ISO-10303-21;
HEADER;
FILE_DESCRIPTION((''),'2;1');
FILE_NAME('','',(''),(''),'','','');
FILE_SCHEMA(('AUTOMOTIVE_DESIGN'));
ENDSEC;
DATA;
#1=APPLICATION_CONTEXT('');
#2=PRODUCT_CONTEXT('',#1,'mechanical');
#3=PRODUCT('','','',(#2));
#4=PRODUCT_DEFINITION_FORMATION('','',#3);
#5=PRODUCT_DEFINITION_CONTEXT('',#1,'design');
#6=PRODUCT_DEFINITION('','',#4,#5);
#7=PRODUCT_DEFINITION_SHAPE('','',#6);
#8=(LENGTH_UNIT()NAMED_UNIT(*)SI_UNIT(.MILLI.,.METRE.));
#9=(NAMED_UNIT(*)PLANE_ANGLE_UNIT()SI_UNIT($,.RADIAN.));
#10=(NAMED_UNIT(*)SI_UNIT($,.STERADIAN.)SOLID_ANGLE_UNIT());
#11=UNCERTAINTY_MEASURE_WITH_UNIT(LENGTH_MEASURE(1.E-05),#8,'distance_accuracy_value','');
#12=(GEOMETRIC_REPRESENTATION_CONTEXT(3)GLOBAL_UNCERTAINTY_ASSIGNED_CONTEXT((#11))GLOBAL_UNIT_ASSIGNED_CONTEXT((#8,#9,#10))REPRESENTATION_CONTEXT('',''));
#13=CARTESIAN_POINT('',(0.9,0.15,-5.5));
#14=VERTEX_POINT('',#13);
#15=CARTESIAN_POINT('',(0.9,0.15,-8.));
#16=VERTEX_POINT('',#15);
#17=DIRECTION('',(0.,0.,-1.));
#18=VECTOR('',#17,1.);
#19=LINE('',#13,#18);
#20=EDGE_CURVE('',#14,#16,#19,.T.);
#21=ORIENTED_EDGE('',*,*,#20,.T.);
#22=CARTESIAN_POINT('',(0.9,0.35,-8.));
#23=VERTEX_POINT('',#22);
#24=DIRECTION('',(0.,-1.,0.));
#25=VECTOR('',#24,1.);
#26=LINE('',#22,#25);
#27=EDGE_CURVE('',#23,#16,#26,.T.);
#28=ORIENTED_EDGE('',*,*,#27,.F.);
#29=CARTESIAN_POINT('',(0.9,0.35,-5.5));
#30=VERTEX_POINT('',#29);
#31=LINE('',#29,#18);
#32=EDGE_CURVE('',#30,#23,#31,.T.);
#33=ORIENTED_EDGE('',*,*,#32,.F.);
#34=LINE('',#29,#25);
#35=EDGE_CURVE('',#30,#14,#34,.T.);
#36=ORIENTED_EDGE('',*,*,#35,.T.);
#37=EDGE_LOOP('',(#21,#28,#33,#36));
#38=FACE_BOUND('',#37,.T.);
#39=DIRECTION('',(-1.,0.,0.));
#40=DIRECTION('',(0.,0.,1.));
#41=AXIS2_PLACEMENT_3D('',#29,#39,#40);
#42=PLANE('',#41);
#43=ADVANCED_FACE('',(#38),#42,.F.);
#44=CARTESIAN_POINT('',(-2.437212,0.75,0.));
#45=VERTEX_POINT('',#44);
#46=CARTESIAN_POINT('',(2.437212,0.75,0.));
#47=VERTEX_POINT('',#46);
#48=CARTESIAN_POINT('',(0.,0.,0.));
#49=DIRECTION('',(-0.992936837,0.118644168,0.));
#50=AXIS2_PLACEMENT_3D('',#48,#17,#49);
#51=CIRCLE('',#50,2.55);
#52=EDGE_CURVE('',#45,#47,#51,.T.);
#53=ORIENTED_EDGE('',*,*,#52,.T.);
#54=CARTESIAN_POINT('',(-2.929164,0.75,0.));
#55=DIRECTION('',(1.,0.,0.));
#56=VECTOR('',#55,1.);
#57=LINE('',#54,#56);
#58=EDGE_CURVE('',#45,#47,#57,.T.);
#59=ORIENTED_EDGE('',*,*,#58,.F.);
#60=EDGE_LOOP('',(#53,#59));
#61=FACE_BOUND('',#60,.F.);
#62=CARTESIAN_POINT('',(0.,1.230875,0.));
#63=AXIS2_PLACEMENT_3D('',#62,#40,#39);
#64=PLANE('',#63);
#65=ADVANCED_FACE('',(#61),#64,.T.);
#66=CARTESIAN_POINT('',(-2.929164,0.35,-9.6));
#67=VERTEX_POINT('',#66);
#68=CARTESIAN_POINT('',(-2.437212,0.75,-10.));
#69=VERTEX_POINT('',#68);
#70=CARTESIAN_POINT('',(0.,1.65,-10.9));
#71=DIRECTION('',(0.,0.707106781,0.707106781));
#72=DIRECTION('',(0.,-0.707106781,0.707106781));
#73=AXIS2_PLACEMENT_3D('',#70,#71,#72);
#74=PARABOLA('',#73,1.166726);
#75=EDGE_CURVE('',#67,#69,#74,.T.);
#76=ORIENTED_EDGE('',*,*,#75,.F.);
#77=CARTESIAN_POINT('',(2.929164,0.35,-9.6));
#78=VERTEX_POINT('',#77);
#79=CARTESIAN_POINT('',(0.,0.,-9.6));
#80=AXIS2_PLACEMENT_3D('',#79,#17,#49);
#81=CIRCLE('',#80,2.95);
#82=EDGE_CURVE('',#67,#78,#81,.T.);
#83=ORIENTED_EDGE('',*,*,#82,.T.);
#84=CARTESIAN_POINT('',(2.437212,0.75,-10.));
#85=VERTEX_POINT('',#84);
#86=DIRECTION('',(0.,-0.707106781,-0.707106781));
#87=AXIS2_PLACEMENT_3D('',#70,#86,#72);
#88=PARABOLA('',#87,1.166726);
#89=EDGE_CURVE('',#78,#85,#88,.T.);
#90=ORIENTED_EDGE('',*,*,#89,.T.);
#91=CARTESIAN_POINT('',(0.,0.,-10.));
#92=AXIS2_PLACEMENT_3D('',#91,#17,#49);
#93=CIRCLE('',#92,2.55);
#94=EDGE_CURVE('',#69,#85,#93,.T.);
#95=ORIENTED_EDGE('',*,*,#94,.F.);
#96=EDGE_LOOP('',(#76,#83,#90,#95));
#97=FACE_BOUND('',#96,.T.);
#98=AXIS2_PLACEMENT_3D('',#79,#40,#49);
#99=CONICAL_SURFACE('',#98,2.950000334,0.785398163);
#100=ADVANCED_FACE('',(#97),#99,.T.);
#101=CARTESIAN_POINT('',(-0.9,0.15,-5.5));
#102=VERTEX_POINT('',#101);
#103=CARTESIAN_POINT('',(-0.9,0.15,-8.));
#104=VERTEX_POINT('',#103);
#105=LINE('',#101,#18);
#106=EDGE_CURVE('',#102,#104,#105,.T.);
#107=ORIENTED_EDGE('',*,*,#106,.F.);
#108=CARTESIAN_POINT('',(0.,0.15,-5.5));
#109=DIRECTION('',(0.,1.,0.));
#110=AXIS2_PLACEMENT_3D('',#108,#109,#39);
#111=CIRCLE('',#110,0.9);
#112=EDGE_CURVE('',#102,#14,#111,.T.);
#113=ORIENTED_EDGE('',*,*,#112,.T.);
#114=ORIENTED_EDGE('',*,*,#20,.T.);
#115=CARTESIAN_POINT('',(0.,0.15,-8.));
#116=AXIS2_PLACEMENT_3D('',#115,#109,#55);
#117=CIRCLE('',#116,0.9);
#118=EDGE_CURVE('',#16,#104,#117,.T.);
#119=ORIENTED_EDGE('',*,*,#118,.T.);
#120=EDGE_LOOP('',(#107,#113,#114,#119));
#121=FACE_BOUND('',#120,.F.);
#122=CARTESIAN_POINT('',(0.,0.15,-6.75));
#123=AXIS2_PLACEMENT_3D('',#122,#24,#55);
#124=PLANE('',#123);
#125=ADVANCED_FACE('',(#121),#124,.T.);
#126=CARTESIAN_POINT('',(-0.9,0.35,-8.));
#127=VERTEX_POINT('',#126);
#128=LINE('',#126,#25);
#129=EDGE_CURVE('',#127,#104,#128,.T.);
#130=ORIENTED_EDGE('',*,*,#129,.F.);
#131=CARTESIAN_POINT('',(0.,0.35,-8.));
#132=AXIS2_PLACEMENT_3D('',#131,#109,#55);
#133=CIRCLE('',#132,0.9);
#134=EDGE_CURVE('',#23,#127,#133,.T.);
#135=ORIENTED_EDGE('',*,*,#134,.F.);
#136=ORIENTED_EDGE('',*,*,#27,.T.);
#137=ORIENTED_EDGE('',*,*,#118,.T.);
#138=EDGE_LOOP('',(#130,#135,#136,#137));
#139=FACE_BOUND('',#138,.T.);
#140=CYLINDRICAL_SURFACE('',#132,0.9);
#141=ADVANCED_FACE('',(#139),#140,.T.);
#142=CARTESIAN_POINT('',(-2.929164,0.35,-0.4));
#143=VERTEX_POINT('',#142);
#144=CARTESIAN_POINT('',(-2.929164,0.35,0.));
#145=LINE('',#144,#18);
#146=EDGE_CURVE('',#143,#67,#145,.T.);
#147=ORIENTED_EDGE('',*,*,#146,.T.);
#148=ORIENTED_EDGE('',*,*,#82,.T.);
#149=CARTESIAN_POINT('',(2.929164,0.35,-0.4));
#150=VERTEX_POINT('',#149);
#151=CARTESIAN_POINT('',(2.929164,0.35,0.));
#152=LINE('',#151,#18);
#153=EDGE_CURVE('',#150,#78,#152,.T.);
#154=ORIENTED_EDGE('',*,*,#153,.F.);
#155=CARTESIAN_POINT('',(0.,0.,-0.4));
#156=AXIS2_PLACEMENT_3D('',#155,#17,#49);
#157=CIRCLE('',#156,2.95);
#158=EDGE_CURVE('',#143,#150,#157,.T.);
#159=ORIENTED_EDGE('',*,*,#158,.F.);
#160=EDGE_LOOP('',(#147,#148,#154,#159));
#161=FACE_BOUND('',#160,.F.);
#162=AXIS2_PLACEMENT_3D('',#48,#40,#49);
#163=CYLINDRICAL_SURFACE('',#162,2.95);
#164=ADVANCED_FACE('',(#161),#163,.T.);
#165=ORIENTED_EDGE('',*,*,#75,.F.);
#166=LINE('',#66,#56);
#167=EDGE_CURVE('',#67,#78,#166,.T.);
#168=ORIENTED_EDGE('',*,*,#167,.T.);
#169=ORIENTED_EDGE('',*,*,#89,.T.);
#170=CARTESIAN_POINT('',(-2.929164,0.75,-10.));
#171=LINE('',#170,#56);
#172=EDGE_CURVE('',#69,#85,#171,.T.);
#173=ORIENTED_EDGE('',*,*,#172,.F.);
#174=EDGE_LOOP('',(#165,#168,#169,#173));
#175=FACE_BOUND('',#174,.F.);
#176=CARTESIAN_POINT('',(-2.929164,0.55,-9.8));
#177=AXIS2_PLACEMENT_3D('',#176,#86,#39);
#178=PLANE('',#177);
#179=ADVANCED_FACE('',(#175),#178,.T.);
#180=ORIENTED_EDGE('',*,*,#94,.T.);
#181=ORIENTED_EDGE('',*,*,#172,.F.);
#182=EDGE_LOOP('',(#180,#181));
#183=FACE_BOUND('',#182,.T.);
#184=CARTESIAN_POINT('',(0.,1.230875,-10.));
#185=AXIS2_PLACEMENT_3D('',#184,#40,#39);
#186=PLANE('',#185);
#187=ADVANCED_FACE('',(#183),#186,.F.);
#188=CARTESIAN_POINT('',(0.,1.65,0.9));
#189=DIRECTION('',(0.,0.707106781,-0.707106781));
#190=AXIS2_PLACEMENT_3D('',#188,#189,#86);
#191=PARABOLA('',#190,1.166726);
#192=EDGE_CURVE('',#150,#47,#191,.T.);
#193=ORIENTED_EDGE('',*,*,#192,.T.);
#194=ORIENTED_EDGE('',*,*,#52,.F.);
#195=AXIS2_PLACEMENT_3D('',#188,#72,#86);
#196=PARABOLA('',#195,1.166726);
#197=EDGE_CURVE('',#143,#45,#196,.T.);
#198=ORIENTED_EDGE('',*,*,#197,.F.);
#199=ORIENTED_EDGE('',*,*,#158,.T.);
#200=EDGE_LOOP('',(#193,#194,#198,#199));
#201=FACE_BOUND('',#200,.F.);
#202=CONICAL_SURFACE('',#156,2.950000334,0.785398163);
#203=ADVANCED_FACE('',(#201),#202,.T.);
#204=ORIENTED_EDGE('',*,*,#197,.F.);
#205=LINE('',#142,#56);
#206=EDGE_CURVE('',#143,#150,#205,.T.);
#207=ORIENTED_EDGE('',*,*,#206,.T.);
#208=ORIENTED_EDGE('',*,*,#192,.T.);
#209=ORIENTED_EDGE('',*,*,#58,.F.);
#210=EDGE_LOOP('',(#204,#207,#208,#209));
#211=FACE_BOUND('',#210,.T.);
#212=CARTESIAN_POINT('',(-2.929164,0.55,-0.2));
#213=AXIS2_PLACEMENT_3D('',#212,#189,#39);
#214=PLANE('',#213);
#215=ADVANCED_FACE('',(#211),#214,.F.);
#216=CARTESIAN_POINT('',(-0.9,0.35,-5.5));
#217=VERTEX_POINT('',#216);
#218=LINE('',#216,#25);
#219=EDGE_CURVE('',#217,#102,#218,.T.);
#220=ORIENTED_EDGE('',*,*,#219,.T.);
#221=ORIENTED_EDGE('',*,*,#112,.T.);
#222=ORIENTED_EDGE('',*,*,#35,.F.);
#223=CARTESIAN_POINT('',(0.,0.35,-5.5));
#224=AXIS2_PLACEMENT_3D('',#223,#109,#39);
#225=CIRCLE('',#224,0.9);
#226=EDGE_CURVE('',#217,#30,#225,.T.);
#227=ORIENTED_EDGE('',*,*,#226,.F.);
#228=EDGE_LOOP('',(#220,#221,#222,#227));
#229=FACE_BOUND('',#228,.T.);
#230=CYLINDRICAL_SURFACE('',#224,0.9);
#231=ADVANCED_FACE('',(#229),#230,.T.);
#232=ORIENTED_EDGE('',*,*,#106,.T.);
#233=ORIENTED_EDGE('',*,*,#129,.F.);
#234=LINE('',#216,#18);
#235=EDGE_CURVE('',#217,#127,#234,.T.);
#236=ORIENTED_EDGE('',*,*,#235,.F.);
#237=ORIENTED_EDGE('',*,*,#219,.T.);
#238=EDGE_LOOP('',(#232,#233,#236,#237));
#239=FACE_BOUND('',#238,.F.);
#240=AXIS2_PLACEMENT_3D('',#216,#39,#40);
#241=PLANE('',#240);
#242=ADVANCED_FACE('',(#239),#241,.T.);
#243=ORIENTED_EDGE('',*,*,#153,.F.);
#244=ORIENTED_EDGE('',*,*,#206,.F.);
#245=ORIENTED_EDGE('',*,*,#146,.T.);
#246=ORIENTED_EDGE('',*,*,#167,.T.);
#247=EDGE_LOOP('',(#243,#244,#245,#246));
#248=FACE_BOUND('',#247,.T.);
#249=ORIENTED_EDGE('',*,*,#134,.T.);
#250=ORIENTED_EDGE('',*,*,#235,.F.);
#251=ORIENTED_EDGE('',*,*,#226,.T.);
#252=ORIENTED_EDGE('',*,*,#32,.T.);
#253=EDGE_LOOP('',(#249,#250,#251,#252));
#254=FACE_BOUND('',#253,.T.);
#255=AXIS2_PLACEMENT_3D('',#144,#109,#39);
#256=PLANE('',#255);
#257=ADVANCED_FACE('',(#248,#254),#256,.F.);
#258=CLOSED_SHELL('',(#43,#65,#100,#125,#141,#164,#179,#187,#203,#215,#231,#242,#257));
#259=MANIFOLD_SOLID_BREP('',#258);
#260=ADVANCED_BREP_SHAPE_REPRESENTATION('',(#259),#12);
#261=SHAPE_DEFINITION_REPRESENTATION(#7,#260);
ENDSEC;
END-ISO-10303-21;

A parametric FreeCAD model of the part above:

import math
import FreeCAD as App
import Part
import Sketcher
Q = App.Units.Quantity


def edges_at(feature, points):
    """Names of the edges that pass closest to the given points."""
    edges = feature.Shape.Edges
    near = lambda p: min(range(len(edges)), key=lambda i: edges[i].distToShape(Part.Vertex(*p))[0])
    return sorted({f"Edge{near(p) + 1}" for p in points})

doc = App.newDocument("Part")
body = doc.addObject("PartDesign::Body", "Body")

sketch1 = body.newObject("Sketcher::SketchObject", "Sketch")
sketch1.AttachmentSupport = (doc.getObject("XY_Plane"), [""])
sketch1.MapMode = "FlatFace"
sketch1.addGeometry([
    Part.ArcOfCircle(Part.Circle(App.Vector(0, 0, 0), App.Vector(0, 0, 1), 3), math.radians(-173), math.radians(-7)),
    Part.LineSegment(App.Vector(2.9, -0.3, 0), App.Vector(-2.9, -0.3, 0)),
], False)
sketch1.addConstraint([
    Sketcher.Constraint("Coincident", 0, 1, 1, 2),
    Sketcher.Constraint("Coincident", 1, 1, 0, 2),
    Sketcher.Constraint("Horizontal", 1),
    Sketcher.Constraint("Coincident", 0, 3, -1, 1),
    Sketcher.Constraint("Radius", 0, Q("2.95 mm")),
    Sketcher.Constraint("DistanceY", 0, 1, -1, 1, Q("0.35 mm")),
])
pad1 = body.newObject("PartDesign::Pad", "Pad")
pad1.Profile = sketch1
pad1.Length = 10
pad1.Reversed = True
doc.recompute()

chamfer = body.newObject("PartDesign::Chamfer", "Chamfer")
chamfer.Base = (pad1, edges_at(pad1, [
    (0, -2.95, 0),
    (0, -0.35, 0),
    (0, -2.95, -10),
    (0, -0.35, -10),
]))
chamfer.Size = 0.4

sketch2 = body.newObject("Sketcher::SketchObject", "Sketch001")
sketch2.AttachmentSupport = (doc.getObject("XZ_Plane"), [""])
sketch2.MapMode = "FlatFace"
sketch2.AttachmentOffset = App.Placement(App.Vector(0, 0, 0.35), App.Rotation())
sketch2.addGeometry([
    Part.ArcOfCircle(Part.Circle(App.Vector(0, -5.5, 0), App.Vector(0, 0, 1), 0.9), math.radians(0), math.radians(180)),
    Part.LineSegment(App.Vector(0.9, -5.5, 0), App.Vector(0.9, -8, 0)),
    Part.ArcOfCircle(Part.Circle(App.Vector(0, -8, 0), App.Vector(0, 0, 1), 0.9), math.radians(180), math.radians(360)),
    Part.LineSegment(App.Vector(-0.9, -8, 0), App.Vector(-0.9, -5.5, 0)),
], False)
sketch2.addConstraint([
    Sketcher.Constraint("Tangent", 0, 1, 1, 1),
    Sketcher.Constraint("Tangent", 1, 2, 2, 2),
    Sketcher.Constraint("Tangent", 2, 1, 3, 1),
    Sketcher.Constraint("Tangent", 3, 2, 0, 2),
    Sketcher.Constraint("Vertical", 1),
    Sketcher.Constraint("Vertical", 3),
    Sketcher.Constraint("PointOnObject", 0, 3, -2),
    Sketcher.Constraint("Radius", 0, Q("0.9 mm")),
    Sketcher.Constraint("DistanceY", 1, 2, 1, 1, Q("2.5 mm")),
    Sketcher.Constraint("DistanceY", 2, 3, -1, 1, Q("8 mm")),
])
pad2 = body.newObject("PartDesign::Pad", "Pad001")
pad2.Profile = sketch2
pad2.Length = 0.2
pad2.Reversed = True
body2 = doc.addObject("PartDesign::Body", "Body001")
doc.recompute()

mirroring = doc.addObject("Part::Mirroring", "Mirroring")
mirroring.Source = body
mirroring.Base = App.Vector(0, 0, 0)
mirroring.Normal = App.Vector(0, 1, 0)
body2.BaseFeature = mirroring
doc.recompute()
body.Visibility = False
mirroring.Visibility = False

doc.recompute()
